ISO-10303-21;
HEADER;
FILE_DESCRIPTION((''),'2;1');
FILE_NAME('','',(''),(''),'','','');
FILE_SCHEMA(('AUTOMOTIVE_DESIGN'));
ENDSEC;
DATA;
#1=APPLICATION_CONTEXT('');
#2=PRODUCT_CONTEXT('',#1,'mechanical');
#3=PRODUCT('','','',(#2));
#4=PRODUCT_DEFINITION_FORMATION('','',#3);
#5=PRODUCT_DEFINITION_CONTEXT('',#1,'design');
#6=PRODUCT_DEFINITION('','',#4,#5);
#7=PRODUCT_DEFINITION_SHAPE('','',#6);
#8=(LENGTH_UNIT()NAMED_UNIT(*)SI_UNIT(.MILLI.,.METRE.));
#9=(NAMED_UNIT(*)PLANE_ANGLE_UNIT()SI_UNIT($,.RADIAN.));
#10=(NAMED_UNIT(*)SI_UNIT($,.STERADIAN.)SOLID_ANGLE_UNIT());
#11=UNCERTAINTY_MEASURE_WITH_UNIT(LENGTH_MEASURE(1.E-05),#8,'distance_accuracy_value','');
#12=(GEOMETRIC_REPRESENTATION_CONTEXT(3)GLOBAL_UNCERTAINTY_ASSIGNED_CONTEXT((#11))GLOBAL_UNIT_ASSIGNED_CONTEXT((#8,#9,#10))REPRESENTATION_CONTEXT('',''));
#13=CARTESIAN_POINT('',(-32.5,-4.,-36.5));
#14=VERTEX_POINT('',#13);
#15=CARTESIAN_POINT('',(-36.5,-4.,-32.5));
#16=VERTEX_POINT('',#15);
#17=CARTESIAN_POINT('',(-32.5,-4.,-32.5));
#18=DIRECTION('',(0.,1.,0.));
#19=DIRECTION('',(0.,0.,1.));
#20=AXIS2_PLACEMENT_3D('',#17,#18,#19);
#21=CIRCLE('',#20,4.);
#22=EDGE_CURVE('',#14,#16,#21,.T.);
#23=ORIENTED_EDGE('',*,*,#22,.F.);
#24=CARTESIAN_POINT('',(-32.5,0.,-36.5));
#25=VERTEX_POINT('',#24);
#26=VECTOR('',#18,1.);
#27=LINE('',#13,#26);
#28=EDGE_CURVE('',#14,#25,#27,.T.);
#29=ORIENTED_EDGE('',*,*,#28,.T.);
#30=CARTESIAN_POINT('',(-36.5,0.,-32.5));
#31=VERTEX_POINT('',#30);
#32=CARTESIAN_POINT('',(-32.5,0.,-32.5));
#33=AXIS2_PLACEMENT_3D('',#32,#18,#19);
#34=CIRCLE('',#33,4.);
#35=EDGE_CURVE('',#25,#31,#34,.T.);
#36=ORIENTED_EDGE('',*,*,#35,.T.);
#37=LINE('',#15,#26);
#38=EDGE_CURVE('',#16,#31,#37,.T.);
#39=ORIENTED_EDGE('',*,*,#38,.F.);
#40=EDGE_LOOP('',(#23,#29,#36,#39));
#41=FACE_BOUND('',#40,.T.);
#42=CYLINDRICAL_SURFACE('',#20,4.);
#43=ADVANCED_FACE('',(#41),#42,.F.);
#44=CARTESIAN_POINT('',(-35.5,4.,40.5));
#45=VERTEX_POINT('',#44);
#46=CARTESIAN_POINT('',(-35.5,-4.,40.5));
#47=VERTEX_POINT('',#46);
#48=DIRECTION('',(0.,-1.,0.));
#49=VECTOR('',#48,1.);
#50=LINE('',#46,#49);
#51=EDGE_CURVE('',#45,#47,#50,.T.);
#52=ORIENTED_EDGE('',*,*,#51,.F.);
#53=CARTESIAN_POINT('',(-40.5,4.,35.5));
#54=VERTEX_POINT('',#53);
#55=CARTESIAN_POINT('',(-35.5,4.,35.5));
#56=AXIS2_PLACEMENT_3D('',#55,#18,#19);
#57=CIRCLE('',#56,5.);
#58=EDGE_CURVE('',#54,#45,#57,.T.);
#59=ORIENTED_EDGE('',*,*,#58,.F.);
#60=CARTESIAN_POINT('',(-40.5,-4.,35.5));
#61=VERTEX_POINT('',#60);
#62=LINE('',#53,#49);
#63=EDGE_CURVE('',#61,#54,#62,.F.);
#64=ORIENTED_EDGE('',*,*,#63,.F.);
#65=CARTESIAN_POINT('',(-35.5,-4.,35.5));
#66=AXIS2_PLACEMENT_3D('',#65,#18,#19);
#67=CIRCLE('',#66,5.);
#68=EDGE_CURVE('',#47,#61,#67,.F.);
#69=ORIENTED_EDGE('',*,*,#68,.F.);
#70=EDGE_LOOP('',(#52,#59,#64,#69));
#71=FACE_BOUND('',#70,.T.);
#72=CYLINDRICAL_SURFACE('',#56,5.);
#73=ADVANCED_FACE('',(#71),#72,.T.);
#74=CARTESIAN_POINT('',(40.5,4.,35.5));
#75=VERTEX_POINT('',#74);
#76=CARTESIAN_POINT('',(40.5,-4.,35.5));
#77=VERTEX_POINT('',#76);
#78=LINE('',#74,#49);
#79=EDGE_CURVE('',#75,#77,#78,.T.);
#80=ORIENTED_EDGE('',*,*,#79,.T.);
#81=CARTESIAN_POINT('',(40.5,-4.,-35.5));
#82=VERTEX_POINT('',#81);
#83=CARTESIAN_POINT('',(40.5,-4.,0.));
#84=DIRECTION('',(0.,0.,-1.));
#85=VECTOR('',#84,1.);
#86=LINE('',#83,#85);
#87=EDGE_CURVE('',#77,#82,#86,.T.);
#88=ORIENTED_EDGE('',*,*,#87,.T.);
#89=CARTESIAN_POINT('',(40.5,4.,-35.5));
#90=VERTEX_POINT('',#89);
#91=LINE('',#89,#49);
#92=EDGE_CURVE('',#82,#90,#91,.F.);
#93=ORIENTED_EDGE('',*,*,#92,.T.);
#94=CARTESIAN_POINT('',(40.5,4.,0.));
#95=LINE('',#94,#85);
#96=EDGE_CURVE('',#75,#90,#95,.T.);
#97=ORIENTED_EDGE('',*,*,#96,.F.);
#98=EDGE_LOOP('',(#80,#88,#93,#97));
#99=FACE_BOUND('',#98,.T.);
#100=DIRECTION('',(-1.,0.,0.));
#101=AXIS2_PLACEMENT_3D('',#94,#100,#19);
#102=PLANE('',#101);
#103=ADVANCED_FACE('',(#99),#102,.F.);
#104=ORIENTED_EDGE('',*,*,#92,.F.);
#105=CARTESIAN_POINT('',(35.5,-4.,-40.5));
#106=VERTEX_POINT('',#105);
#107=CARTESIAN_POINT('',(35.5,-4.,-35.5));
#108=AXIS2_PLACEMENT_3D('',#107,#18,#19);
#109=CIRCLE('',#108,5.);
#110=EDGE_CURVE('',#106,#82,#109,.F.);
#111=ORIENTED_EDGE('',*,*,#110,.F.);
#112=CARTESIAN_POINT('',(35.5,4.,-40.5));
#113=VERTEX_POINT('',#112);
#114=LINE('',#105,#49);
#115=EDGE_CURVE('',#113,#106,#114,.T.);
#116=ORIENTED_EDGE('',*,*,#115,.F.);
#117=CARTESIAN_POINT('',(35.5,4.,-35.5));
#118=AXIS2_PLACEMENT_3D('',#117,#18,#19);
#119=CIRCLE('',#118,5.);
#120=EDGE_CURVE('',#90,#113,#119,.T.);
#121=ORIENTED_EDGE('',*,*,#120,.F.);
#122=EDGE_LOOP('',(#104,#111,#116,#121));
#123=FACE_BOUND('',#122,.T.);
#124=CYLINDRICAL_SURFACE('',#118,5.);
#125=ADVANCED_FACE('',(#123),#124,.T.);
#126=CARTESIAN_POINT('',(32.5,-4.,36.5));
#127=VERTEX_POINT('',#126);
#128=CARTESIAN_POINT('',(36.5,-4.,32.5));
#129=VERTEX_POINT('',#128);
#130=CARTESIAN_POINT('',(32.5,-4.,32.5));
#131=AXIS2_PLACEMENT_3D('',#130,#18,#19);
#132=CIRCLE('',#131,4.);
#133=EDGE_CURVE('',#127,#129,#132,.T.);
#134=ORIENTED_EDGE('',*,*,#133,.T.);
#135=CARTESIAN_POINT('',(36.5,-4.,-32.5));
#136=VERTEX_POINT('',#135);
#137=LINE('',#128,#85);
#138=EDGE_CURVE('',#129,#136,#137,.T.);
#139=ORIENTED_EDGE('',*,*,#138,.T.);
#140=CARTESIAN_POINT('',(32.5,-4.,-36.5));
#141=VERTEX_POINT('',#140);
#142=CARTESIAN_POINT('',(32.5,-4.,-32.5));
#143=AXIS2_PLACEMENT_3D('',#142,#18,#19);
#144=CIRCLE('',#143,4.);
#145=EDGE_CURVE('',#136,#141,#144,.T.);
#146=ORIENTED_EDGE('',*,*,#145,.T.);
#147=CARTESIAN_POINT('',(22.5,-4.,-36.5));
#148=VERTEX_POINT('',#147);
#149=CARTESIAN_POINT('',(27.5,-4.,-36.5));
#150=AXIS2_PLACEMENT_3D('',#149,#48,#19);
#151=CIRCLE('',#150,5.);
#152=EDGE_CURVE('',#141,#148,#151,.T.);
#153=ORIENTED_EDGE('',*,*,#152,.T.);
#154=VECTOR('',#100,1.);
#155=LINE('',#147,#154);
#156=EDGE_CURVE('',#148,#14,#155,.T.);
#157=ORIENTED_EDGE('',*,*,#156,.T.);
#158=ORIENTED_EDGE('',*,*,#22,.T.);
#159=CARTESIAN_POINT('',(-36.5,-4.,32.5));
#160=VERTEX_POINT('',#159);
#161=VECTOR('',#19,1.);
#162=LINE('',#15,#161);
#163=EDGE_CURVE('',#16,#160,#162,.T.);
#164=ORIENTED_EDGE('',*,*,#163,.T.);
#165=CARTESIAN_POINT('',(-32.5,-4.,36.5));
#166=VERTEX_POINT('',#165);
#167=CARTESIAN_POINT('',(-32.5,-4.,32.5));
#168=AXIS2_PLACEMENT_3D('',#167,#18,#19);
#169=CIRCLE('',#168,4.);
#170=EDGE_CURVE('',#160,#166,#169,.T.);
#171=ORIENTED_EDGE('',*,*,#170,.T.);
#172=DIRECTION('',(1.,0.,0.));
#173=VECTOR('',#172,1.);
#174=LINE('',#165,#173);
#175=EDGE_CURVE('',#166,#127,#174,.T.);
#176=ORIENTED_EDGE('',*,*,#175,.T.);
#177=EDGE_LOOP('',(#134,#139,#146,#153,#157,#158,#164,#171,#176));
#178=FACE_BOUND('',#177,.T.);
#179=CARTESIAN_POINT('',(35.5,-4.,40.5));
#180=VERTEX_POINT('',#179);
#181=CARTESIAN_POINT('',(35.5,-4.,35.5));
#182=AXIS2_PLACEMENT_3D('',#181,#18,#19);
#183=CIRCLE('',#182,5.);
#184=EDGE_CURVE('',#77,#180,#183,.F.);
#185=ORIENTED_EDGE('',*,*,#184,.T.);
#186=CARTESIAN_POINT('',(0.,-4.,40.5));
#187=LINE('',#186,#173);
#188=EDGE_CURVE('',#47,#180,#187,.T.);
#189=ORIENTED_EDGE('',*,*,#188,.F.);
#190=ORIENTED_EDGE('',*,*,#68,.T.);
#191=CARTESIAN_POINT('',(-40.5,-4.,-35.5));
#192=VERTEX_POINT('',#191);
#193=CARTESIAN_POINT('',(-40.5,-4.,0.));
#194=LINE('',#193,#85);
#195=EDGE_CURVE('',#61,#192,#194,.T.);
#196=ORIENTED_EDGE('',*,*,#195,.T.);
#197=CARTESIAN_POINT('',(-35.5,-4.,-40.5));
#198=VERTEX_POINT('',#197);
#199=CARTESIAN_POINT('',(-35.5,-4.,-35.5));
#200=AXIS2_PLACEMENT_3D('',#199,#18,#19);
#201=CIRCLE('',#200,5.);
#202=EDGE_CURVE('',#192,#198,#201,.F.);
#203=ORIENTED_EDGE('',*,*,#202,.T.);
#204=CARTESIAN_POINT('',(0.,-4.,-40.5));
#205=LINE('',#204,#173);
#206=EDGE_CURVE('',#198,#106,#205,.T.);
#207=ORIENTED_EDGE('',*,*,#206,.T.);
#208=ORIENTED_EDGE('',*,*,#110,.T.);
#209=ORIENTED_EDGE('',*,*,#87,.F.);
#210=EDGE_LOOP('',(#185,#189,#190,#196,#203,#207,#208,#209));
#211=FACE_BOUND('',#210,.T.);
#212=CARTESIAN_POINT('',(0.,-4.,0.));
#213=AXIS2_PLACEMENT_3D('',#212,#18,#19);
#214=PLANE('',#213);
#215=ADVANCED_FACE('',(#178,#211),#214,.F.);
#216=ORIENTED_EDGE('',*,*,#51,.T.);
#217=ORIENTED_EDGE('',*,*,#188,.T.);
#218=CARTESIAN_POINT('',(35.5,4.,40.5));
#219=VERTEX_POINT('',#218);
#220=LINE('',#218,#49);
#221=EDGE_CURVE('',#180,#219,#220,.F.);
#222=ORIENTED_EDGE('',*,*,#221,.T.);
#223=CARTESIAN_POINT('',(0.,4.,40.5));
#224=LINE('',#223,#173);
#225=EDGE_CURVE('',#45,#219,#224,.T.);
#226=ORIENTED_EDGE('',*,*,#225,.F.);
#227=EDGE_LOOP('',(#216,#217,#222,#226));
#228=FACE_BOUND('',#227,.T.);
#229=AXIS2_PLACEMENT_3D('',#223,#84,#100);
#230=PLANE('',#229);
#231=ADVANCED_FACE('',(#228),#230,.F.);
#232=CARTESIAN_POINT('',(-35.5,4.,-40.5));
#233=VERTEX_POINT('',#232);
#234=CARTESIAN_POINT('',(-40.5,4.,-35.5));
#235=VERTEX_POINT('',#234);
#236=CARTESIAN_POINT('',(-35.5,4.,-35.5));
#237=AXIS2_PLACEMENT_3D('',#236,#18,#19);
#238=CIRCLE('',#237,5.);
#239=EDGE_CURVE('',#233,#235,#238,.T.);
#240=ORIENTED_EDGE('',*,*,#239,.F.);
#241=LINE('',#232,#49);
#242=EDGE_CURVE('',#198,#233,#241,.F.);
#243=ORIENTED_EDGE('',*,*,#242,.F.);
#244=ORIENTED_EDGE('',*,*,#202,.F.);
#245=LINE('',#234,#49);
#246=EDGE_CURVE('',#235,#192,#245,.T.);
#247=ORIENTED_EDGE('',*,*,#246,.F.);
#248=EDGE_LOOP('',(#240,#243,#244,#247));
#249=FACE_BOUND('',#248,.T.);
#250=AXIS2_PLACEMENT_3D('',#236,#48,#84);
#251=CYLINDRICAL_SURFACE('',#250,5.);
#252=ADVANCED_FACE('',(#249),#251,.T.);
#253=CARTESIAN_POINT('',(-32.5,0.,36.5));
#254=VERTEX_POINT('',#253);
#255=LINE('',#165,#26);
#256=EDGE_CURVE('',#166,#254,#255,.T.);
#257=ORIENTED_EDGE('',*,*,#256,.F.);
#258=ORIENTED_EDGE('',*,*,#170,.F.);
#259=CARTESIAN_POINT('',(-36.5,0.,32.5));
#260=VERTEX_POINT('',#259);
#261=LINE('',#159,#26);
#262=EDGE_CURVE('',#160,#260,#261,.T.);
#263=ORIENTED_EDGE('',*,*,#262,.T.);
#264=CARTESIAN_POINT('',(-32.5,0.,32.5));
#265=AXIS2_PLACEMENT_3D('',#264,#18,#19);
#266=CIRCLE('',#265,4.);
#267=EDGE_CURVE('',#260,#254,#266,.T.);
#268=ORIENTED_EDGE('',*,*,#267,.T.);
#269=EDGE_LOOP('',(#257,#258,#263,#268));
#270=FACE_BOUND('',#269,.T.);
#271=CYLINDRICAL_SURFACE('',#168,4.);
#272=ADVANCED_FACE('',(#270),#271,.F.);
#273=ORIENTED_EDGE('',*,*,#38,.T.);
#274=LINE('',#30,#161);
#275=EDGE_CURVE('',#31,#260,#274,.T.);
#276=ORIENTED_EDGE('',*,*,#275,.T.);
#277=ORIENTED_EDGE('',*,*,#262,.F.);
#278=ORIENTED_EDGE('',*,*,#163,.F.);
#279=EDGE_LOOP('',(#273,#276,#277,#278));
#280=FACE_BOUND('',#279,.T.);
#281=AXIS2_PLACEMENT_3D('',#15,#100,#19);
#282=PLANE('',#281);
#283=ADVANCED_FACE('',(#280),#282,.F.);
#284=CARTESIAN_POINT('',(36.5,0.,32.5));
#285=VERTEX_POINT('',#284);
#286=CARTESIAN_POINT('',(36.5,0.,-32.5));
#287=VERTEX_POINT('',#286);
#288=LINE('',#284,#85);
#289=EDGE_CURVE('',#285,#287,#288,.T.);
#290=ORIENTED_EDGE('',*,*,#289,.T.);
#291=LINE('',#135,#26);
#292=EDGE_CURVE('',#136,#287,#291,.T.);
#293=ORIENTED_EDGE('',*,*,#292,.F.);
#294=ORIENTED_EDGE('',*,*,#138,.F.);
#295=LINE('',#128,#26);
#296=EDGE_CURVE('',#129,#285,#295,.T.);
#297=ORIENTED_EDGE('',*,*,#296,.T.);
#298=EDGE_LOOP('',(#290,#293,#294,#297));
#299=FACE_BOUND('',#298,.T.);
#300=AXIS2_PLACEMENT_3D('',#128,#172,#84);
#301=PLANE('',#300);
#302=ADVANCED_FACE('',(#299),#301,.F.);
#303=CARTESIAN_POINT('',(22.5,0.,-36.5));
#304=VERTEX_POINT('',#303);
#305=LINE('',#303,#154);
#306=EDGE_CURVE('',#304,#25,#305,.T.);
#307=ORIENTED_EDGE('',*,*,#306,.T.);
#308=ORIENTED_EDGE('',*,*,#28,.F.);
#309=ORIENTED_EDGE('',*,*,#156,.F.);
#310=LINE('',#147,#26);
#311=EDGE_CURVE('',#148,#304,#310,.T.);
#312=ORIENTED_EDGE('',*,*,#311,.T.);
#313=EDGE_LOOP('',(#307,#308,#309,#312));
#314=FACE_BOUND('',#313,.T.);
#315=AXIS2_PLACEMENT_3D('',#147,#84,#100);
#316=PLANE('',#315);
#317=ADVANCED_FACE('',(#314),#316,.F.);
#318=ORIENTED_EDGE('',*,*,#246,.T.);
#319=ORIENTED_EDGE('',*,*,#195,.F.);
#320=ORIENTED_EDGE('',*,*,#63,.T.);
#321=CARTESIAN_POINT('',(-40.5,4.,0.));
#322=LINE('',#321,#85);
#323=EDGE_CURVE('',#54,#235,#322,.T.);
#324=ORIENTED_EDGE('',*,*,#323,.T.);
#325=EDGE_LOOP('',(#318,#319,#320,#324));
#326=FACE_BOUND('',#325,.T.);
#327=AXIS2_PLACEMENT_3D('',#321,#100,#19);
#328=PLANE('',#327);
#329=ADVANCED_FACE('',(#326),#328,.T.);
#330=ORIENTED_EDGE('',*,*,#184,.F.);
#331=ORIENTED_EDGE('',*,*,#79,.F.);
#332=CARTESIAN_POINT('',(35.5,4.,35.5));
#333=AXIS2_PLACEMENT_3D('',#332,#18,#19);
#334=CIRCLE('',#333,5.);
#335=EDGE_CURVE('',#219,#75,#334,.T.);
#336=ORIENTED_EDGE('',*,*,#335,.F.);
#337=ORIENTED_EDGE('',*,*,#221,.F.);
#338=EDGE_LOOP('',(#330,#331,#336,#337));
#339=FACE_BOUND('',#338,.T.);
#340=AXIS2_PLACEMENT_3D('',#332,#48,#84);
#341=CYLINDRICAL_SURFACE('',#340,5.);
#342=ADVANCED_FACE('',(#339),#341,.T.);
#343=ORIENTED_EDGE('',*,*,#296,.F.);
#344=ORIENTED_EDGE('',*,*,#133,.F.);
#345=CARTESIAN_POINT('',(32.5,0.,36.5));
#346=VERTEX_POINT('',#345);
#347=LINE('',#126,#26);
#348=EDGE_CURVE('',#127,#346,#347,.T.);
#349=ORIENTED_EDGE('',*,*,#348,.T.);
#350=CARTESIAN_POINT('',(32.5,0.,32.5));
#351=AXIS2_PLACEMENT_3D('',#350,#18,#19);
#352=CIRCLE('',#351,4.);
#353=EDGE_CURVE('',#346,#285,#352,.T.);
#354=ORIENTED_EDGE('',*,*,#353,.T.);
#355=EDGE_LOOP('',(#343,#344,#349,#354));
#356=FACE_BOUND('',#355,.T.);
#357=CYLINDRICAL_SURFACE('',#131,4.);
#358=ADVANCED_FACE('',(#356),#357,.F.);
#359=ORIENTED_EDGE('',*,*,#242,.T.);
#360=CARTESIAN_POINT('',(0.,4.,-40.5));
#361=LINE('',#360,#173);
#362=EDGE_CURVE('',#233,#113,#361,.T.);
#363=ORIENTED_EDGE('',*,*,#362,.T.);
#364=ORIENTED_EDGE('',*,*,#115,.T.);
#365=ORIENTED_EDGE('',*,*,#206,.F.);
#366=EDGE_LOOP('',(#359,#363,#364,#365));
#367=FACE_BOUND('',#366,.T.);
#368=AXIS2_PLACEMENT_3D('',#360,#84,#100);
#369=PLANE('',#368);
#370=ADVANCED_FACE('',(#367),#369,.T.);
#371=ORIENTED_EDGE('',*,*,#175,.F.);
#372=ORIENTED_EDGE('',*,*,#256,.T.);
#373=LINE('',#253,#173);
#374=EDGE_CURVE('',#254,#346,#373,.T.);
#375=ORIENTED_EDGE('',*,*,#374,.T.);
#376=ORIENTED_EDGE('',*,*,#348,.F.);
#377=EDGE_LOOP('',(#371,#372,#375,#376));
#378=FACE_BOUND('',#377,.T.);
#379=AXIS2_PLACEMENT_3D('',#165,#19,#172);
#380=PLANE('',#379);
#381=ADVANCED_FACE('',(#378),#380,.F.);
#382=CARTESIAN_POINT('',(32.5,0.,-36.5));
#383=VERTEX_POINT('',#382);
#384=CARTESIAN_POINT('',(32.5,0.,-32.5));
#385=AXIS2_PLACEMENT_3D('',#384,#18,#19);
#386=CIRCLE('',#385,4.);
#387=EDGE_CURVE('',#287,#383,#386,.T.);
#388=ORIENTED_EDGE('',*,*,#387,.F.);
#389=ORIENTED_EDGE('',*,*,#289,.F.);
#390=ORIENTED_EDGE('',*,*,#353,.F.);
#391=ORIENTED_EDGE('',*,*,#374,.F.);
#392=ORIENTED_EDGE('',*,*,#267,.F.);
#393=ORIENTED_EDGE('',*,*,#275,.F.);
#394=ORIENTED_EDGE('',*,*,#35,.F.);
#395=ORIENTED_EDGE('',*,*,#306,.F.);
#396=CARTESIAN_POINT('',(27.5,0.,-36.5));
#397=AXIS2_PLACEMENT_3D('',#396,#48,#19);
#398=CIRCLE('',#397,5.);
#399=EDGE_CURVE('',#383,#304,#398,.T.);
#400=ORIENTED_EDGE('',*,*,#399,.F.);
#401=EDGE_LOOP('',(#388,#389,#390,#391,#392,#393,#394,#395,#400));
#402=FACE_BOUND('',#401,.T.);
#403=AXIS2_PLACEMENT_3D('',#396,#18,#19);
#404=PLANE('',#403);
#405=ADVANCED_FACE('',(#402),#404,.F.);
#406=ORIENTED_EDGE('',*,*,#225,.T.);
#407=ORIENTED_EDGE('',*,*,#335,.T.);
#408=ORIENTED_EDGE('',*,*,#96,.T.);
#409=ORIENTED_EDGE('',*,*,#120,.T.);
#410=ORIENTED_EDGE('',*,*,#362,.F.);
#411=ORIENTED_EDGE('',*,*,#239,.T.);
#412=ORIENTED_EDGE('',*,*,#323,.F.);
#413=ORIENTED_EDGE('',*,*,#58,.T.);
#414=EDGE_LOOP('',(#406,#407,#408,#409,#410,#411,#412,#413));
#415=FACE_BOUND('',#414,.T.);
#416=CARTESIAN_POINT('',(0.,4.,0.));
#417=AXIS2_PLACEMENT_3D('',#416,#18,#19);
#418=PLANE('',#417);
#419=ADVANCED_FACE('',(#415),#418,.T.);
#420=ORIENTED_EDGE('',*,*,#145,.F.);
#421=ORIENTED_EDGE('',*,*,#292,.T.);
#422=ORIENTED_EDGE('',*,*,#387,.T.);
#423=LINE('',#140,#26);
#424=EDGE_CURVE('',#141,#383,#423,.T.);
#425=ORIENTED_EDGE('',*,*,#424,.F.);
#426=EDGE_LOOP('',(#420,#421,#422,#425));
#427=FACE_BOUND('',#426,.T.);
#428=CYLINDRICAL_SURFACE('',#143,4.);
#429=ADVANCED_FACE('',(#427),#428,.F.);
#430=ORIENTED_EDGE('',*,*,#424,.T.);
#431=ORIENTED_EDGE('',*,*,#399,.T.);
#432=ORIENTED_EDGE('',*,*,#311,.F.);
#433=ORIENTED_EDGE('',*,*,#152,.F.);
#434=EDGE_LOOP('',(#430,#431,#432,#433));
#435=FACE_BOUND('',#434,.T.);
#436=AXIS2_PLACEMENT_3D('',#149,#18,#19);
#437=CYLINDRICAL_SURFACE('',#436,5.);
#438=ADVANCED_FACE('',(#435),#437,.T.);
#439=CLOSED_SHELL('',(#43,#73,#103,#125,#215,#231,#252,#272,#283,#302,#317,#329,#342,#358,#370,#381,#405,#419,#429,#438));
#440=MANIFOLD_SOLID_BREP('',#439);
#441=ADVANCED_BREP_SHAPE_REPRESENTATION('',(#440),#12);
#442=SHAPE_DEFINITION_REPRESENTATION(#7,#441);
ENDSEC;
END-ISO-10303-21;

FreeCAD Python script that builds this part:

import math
import FreeCAD as App
import Part
import Sketcher
from FreeCAD import Vector


def edges_at(feature, points):
    """Names of the edges that pass closest to the given points."""
    edges = feature.Shape.Edges
    near = lambda p: min(range(len(edges)), key=lambda i: edges[i].distToShape(Part.Vertex(*p))[0])
    return sorted({f"Edge{near(p) + 1}" for p in points})


def add_polygon(sketch, points):
    """Adds a closed chain of lines whose ends are joined by coincident constraints."""
    first, n = sketch.GeometryCount, len(points)
    for a, b in zip(points, points[1:] + points[:1]):
        sketch.addGeometry(Part.LineSegment(App.Vector(*a, 0), App.Vector(*b, 0)), False)
    for i in range(n):
        sketch.addConstraint(Sketcher.Constraint("Coincident", first + i, 2, first + (i + 1) % n, 1))

doc = App.newDocument("Part")
body = doc.addObject("PartDesign::Body", "Body")

# Sketch on XZ plane
sketch1 = body.newObject("Sketcher::SketchObject", "Sketch")
sketch1.AttachmentSupport = (doc.getObject("XZ_Plane"), [""])
sketch1.MapMode = "FlatFace"
add_polygon(sketch1, [(-40, -40), (-40, 40), (40, 40), (40, -40)])  # lines 0-3
sketch1.addConstraint([
    Sketcher.Constraint("Vertical", 0),
    Sketcher.Constraint("Horizontal", 1),
    Sketcher.Constraint("Vertical", 2),
    Sketcher.Constraint("Horizontal", 3),
    Sketcher.Constraint("Symmetric", 0, 2, 2, 2, -1, 1),
    Sketcher.Constraint("Equal", 3, 0),
    Sketcher.Constraint("DistanceX", 1, 1, 1, 2, 81.0),
])
pad1 = body.newObject("PartDesign::Pad", "Pad")
pad1.Profile = sketch1
pad1.Length = 8
pad1.Midplane = True

# Sketch on XZ plane
sketch2 = body.newObject("Sketcher::SketchObject", "Sketch001")
sketch2.AttachmentSupport = (doc.getObject("XZ_Plane"), [""])
sketch2.MapMode = "FlatFace"
sketch2.addGeometry([
    Part.LineSegment(Vector(22.5, -36.5, 0), Vector(-32.5, -36.5, 0)),  # 0
    Part.ArcOfCircle(Part.Circle(Vector(-32.5, -32.5, 0), Vector(0, 0, 1), 4), math.radians(180), math.radians(270)),  # 1
    Part.LineSegment(Vector(-36.5, -32.5, 0), Vector(-36.5, 32.5, 0)),  # 2
    Part.ArcOfCircle(Part.Circle(Vector(-32.5, 32.5, 0), Vector(0, 0, 1), 4), math.radians(90), math.radians(180)),  # 3
    Part.LineSegment(Vector(-32.5, 36.5, 0), Vector(32.5, 36.5, 0)),  # 4
    Part.ArcOfCircle(Part.Circle(Vector(32.5, 32.5, 0), Vector(0, 0, 1), 4), math.radians(0), math.radians(90)),  # 5
    Part.LineSegment(Vector(36.5, 32.5, 0), Vector(36.5, -32.5, 0)),  # 6
    Part.ArcOfCircle(Part.Circle(Vector(32.5, -32.5, 0), Vector(0, 0, 1), 4), math.radians(-90), math.radians(0)),  # 7
    Part.ArcOfCircle(Part.Circle(Vector(27.5, -36.5, 0), Vector(0, 0, 1), 5), math.radians(0), math.radians(180)),  # 8
], False)
sketch2.addConstraint([
    Sketcher.Constraint("Tangent", 0, 2, 1, 2),
    Sketcher.Constraint("Tangent", 1, 1, 2, 1),
    Sketcher.Constraint("Tangent", 2, 2, 3, 2),
    Sketcher.Constraint("Tangent", 3, 1, 4, 1),
    Sketcher.Constraint("Tangent", 4, 2, 5, 2),
    Sketcher.Constraint("Tangent", 5, 1, 6, 1),
    Sketcher.Constraint("Tangent", 6, 2, 7, 2),
    Sketcher.Constraint("Coincident", 7, 1, 8, 1),
    Sketcher.Constraint("Coincident", 8, 2, 0, 1),
    Sketcher.Constraint("Horizontal", 0),
    Sketcher.Constraint("Vertical", 2),
    Sketcher.Constraint("Horizontal", 4),
    Sketcher.Constraint("Vertical", 6),
    Sketcher.Constraint("Equal", 1, 3),
    Sketcher.Constraint("Equal", 3, 5),
    Sketcher.Constraint("Equal", 5, 7),
    Sketcher.Constraint("Symmetric", 1, 3, 5, 3, -1, 1),
    Sketcher.Constraint("Symmetric", 3, 1, 7, 1, -1, 1),
    Sketcher.Constraint("Horizontal", 8, 3, 0, 2),
    Sketcher.Constraint("Equal", 4, 2),
    Sketcher.Constraint("Radius", 1, 4.0),
    Sketcher.Constraint("Radius", 8, 5.0),
    Sketcher.Constraint("DistanceX", 0, 2, 0, 1, 55.0),
])
pocket1 = body.newObject("PartDesign::Pocket", "Pocket")
pocket1.Profile = sketch2
pocket1.Length = 4
pocket1.Reversed = True
doc.recompute()

fillet = body.newObject("PartDesign::Fillet", "Fillet")
fillet.Base = (pocket1, edges_at(pocket1, [
    (-40.5, 0, 40.5),
    (-40.5, 0, -40.5),
    (40.5, 0, -40.5),
    (40.5, 0, 40.5),
]))
fillet.Radius = 5

doc.recompute()
